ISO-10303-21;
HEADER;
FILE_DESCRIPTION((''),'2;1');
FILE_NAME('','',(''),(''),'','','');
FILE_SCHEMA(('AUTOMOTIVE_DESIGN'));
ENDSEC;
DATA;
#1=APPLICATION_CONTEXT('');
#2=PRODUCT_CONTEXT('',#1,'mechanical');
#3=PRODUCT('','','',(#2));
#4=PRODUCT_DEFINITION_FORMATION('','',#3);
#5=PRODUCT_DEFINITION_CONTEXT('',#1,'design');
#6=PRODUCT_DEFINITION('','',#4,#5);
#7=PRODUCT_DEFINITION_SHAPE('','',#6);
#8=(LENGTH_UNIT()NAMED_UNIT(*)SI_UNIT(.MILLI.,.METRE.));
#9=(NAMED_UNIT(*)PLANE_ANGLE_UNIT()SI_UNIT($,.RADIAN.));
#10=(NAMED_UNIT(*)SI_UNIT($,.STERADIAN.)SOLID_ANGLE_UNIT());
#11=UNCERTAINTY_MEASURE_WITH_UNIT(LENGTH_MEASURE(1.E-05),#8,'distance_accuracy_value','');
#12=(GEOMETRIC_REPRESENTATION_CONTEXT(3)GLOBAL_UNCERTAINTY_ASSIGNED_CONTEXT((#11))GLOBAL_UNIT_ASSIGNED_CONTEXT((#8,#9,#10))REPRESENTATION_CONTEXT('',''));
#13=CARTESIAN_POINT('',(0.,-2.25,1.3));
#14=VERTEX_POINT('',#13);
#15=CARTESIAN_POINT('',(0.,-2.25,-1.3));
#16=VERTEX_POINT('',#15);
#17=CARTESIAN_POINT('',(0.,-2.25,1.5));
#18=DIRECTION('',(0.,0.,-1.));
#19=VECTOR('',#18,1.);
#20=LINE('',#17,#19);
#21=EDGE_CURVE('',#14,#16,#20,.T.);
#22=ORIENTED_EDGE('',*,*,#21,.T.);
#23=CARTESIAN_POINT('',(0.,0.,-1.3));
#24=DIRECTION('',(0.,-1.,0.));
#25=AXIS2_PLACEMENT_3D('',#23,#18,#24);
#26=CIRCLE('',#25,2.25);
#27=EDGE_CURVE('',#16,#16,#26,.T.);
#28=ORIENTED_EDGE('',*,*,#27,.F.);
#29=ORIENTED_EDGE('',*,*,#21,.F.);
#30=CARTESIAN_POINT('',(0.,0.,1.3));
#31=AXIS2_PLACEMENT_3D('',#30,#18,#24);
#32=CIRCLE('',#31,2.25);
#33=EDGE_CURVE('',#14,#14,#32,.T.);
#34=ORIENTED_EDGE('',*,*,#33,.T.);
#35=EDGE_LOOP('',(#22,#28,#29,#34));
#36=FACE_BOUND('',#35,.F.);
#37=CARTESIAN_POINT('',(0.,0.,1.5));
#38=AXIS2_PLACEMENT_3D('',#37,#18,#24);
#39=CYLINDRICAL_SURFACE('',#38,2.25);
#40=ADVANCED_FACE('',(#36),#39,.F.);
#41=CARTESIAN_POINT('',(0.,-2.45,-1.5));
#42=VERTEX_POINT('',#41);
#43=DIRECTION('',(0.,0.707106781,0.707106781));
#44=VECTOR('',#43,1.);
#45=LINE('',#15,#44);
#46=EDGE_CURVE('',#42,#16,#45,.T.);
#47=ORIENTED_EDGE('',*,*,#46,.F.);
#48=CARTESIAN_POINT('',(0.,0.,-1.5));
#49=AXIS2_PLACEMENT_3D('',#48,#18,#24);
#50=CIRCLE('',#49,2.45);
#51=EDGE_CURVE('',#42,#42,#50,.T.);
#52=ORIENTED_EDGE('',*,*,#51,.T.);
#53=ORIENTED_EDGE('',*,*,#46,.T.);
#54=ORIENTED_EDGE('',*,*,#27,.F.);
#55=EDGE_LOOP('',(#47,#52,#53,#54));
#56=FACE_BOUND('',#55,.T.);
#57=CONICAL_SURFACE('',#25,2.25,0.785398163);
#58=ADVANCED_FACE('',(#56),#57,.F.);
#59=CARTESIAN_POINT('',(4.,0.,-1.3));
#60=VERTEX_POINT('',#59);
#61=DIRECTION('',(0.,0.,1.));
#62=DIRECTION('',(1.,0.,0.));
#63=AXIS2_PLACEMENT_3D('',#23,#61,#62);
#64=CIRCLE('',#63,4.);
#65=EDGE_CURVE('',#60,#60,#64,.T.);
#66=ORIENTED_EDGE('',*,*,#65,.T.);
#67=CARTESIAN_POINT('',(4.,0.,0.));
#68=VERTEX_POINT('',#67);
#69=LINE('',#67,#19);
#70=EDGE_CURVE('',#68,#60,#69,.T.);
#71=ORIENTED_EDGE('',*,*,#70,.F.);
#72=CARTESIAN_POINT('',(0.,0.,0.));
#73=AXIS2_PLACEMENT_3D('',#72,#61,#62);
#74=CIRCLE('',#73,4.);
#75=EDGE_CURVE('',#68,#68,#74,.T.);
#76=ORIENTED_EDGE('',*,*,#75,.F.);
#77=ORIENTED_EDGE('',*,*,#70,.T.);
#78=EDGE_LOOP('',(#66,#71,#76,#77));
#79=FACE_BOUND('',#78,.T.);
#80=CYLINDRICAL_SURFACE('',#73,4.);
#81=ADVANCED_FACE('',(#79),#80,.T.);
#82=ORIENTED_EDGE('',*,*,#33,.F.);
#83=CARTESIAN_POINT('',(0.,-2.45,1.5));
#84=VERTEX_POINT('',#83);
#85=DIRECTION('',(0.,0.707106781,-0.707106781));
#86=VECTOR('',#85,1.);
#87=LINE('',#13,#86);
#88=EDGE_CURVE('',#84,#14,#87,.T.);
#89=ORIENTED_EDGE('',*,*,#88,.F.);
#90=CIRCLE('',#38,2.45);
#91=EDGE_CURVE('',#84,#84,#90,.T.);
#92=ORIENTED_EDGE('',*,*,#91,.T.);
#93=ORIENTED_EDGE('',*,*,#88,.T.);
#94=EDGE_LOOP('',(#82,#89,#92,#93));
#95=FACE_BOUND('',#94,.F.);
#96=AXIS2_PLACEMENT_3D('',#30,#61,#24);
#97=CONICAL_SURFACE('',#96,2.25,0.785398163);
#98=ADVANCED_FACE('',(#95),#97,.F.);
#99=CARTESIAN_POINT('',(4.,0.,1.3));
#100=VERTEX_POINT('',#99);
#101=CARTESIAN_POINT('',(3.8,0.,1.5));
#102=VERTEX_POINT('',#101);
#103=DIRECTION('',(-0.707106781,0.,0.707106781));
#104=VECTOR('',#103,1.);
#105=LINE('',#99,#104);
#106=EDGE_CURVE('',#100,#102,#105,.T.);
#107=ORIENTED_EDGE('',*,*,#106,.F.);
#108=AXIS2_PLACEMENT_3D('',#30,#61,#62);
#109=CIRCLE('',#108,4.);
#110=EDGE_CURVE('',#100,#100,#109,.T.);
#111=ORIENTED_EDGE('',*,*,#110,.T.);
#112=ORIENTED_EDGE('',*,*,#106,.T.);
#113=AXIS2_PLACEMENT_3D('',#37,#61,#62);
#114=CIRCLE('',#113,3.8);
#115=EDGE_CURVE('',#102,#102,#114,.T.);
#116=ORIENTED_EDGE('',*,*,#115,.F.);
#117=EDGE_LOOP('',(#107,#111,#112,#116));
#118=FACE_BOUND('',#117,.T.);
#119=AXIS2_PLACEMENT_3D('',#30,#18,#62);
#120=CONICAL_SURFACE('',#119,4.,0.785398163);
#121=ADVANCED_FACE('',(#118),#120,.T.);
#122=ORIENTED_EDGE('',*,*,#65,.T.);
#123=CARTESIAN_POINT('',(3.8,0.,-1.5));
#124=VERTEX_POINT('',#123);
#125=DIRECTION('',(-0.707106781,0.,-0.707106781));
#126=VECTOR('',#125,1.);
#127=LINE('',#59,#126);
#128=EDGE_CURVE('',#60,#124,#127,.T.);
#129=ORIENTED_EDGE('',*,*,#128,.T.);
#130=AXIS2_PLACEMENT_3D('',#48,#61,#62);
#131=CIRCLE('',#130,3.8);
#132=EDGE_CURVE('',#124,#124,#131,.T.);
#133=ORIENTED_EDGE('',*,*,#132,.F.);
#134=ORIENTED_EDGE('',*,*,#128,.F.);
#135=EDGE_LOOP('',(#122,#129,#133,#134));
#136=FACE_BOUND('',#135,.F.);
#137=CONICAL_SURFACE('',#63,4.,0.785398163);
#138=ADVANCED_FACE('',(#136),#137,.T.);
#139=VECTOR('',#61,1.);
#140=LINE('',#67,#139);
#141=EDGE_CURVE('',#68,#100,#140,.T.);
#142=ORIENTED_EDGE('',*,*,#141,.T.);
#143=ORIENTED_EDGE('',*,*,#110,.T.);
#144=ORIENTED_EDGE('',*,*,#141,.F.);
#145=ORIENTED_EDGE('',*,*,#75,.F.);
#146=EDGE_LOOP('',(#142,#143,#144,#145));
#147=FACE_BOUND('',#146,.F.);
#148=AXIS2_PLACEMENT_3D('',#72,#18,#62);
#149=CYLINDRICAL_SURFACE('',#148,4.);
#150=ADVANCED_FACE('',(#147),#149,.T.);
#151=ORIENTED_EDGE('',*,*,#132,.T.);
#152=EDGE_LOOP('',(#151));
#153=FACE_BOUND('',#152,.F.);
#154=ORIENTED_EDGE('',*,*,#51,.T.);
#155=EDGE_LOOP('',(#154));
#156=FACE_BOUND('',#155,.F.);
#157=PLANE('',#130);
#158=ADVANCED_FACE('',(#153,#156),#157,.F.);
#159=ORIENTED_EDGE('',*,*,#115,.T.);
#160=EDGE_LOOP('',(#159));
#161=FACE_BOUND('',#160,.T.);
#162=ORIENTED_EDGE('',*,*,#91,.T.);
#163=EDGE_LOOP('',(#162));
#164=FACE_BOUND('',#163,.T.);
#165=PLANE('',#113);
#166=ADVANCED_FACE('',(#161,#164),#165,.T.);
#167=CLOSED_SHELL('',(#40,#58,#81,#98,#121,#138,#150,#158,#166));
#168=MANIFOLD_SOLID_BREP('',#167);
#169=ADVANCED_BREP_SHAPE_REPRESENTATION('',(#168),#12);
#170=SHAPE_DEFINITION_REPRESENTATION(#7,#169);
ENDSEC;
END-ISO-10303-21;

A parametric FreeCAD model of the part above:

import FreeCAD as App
import Part
import Sketcher
from FreeCAD import Vector
Q = App.Units.Quantity


def edges_at(feature, points):
    """Names of the edges that pass closest to the given points."""
    edges = feature.Shape.Edges
    near = lambda p: min(range(len(edges)), key=lambda i: edges[i].distToShape(Part.Vertex(*p))[0])
    return sorted({f"Edge{near(p) + 1}" for p in points})

doc = App.newDocument("Part")
body = doc.addObject("PartDesign::Body", "Body")

# Sketch on XY plane
sketch1 = body.newObject("Sketcher::SketchObject", "Sketch")
sketch1.AttachmentSupport = (doc.getObject("XY_Plane"), [""])
sketch1.MapMode = "FlatFace"
sketch1.addGeometry(Part.Circle(Vector(0, 0, 0), Vector(0, 0, 1), 4), False)
sketch1.addConstraint([
    Sketcher.Constraint("Coincident", 0, 3, -1, 1),
    Sketcher.Constraint("Diameter", 0, Q("8 mm")),
])
pad1 = body.newObject("PartDesign::Pad", "Pad")
pad1.Profile = sketch1
pad1.Length = 3
pad1.Midplane = True

# Sketch on XY plane
sketch2 = body.newObject("Sketcher::SketchObject", "Sketch001")
sketch2.AttachmentSupport = (doc.getObject("XY_Plane"), [""])
sketch2.MapMode = "FlatFace"
sketch2.AttachmentOffset = App.Placement(Vector(0, 0, 1.5), App.Rotation())
sketch2.addGeometry(Part.Circle(Vector(0, 0, 0), Vector(0, 0, 1), 2.25), False)
sketch2.addConstraint([
    Sketcher.Constraint("Coincident", 0, 3, -1, 1),
    Sketcher.Constraint("Diameter", 0, Q("4.5 mm")),
])
doc.recompute()
hole = body.newObject("PartDesign::Hole", "Hole")
hole.Profile = sketch2
hole.ThreadType = "None"
hole.Diameter = 4.5
hole.DepthType = "ThroughAll"
doc.recompute()

mirrored = body.newObject("PartDesign::Mirrored", "Mirrored")
mirrored.Originals = [hole]
mirrored.MirrorPlane = (doc.getObject("XY_Plane"), [""])
body.Tip = mirrored
doc.recompute()

chamfer = body.newObject("PartDesign::Chamfer", "Chamfer")
chamfer.Base = (mirrored, edges_at(mirrored, [
    (0, 2.25, 1.5),
    (-4, 0, 1.5),
    (-4, 0, -1.5),
    (0, 2.25, -1.5),
]))
chamfer.Size = 0.2

doc.recompute()
